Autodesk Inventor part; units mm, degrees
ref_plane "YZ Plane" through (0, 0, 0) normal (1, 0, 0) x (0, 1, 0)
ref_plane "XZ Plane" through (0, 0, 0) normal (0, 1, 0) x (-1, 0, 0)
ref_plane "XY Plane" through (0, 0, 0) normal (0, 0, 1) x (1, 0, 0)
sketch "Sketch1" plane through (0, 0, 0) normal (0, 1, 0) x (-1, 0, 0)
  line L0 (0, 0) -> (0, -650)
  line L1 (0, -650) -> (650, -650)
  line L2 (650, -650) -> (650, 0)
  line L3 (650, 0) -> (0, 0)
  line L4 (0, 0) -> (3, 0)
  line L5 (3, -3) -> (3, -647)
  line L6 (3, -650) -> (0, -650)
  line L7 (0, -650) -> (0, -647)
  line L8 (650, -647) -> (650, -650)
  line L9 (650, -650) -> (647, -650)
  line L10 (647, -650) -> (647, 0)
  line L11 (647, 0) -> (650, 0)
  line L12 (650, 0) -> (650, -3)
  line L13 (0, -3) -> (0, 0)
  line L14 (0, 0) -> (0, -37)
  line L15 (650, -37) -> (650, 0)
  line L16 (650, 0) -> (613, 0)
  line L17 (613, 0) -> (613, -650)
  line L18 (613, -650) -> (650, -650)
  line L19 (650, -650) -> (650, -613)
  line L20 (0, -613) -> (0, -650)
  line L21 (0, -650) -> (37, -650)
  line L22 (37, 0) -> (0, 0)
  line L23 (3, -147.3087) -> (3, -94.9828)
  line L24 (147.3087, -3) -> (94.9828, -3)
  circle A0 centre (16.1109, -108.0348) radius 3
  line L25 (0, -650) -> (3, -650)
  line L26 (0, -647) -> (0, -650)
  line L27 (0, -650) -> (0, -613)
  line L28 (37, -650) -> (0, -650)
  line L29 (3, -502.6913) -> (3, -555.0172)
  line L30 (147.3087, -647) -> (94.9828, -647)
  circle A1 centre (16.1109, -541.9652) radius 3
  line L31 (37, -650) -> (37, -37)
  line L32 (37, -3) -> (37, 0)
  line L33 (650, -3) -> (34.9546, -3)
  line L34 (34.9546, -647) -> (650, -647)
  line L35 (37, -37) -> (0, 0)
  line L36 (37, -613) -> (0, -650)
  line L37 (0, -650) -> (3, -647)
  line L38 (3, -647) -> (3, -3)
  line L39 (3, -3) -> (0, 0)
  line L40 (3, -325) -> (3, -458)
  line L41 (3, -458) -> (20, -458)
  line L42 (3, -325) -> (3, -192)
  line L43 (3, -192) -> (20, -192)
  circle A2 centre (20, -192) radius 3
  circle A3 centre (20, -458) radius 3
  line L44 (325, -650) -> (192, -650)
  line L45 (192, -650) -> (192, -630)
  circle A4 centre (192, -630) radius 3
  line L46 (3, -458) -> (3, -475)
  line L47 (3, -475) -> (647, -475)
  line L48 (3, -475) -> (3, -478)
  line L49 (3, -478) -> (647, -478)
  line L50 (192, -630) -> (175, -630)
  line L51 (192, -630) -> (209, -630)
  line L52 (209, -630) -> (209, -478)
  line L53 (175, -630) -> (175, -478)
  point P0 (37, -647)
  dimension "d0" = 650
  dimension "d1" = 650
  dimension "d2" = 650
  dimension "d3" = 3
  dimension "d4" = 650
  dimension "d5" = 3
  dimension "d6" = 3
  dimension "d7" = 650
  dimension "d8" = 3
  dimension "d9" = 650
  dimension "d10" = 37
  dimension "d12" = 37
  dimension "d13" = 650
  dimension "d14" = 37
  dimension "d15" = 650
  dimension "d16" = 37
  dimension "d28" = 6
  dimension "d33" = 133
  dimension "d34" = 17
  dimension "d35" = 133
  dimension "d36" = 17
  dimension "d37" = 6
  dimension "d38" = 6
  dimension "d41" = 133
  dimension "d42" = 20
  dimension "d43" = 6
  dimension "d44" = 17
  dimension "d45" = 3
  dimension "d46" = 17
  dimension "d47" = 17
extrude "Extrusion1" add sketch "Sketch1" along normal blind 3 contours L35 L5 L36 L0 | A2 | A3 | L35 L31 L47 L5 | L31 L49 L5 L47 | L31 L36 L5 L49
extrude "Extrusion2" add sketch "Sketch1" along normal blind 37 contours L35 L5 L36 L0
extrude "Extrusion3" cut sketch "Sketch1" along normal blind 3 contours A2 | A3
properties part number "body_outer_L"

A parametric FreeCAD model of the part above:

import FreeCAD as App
import Part
import Sketcher

V = App.Vector


def add_polygon(sketch, points):
    """Adds a closed chain of lines whose ends are joined by coincident constraints."""
    first, n = sketch.GeometryCount, len(points)
    for a, b in zip(points, points[1:] + points[:1]):
        sketch.addGeometry(Part.LineSegment(App.Vector(*a, 0), App.Vector(*b, 0)), False)
    for i in range(n):
        sketch.addConstraint(Sketcher.Constraint("Coincident", first + i, 2, first + (i + 1) % n, 1))

doc = App.newDocument("Part")
params = doc.addObject("Spreadsheet::Sheet", "Params")
for row, (alias, value) in enumerate([
    ("sketch1_diameter", "6 mm"),
    ("sketch1_height", "650 mm"),
    ("pad1_length", "3 mm"),
    ("sketch2_height", "650 mm"),
    ("pad2_length", "37 mm"),
    ("sketch3_diameter", "6 mm"),
    ("pocket1_length", "3 mm"),
], start=1):
    params.set(f"A{row}", alias)
    params.set(f"B{row}", "=" + value)
    params.setAlias(f"B{row}", alias)

body = doc.addObject("PartDesign::Body", "Body")

# Sketch on XZ plane
sketch1 = body.newObject("Sketcher::SketchObject", "Sketch")
sketch1.AttachmentSupport = (doc.getObject("XZ_Plane"), [""])
sketch1.MapMode = "FlatFace"
add_polygon(sketch1, [(0, 0), (0, -650), (-37, -613), (-37, -37)])  # lines 0-3
sketch1.addGeometry(Part.Circle(V(-16.1, -108, 0), V(0, 0, 1), 3), False)  # 4
sketch1.addGeometry(Part.Circle(V(-16.1, -542, 0), V(0, 0, 1), 3), False)  # 5
sketch1.addConstraint(Sketcher.Constraint("Vertical", 0))
sketch1.addConstraint(Sketcher.Constraint("Vertical", 2))
sketch1.addConstraint(Sketcher.Constraint("Coincident", 3, 2, -1, 1))
sketch1.addConstraint(Sketcher.Constraint("Equal", 4, 5))
sketch1.addConstraint(Sketcher.Constraint("Perpendicular", 1, 3))
sketch1.addConstraint(Sketcher.Constraint("Vertical", 4, 3, 5, 3))
sketch1.addConstraint(Sketcher.Constraint("Equal", 1, 3))
sketch1.addConstraint(Sketcher.Constraint("Diameter", 4, 6.0))
sketch1.addConstraint(Sketcher.Constraint("DistanceY", 0, 2, 0, 1, 650.0))
sketch1.addConstraint(Sketcher.Constraint("DistanceX", 1, 2, -1, 1, 37.0))
sketch1.addConstraint(Sketcher.Constraint("DistanceX", 4, 3, -1, 1, 16.111))
sketch1.addConstraint(Sketcher.Constraint("DistanceY", 4, 3, -1, 1, 108.0348))
sketch1.addConstraint(Sketcher.Constraint("DistanceY", 5, 3, -1, 1, 541.9652))
sketch1.setExpression("Constraints[11]", "Params.sketch1_diameter")
sketch1.setExpression("Constraints[12]", "Params.sketch1_height")
pad1 = body.newObject("PartDesign::Pad", "Pad")
pad1.Profile = sketch1
pad1.setExpression("Length", "Params.pad1_length")
pad1.Reversed = True

# Sketch on XZ plane
sketch2 = body.newObject("Sketcher::SketchObject", "Sketch001")
sketch2.AttachmentSupport = (doc.getObject("XZ_Plane"), [""])
sketch2.MapMode = "FlatFace"
add_polygon(sketch2, [(-3, -3), (0, 0), (0, -650), (-3, -647)])  # lines 0-3
sketch2.addConstraint(Sketcher.Constraint("Vertical", 1))
sketch2.addConstraint(Sketcher.Constraint("Vertical", 3))
sketch2.addConstraint(Sketcher.Constraint("Coincident", 0, 2, -1, 1))
sketch2.addConstraint(Sketcher.Constraint("Perpendicular", 0, 2))
sketch2.addConstraint(Sketcher.Constraint("Equal", 0, 2))
sketch2.addConstraint(Sketcher.Constraint("DistanceY", 1, 2, 1, 1, 650.0))
sketch2.addConstraint(Sketcher.Constraint("DistanceX", 2, 2, -1, 1, 3.0))
sketch2.setExpression("Constraints[9]", "Params.sketch2_height")
pad2 = body.newObject("PartDesign::Pad", "Pad001")
pad2.Profile = sketch2
pad2.setExpression("Length", "Params.pad2_length")
pad2.Reversed = True

# Sketch on XZ plane
sketch3 = body.newObject("Sketcher::SketchObject", "Sketch002")
sketch3.AttachmentSupport = (doc.getObject("XZ_Plane"), [""])
sketch3.MapMode = "FlatFace"
sketch3.addGeometry(Part.Circle(V(-20, -192, 0), V(0, 0, 1), 3), False)
sketch3.addGeometry(Part.Circle(V(-20, -458, 0), V(0, 0, 1), 3), False)
sketch3.addConstraint(Sketcher.Constraint("Equal", 0, 1))
sketch3.addConstraint(Sketcher.Constraint("Vertical", 0, 3, 1, 3))
sketch3.addConstraint(Sketcher.Constraint("Diameter", 0, 6.0))
sketch3.addConstraint(Sketcher.Constraint("DistanceX", 0, 3, -1, 1, 20.0))
sketch3.addConstraint(Sketcher.Constraint("DistanceY", 0, 3, -1, 1, 192.0))
sketch3.addConstraint(Sketcher.Constraint("DistanceY", 1, 3, -1, 1, 458.0))
sketch3.setExpression("Constraints[2]", "Params.sketch3_diameter")
pocket1 = body.newObject("PartDesign::Pocket", "Pocket")
pocket1.Profile = sketch3
pocket1.setExpression("Length", "Params.pocket1_length")

doc.recompute()
